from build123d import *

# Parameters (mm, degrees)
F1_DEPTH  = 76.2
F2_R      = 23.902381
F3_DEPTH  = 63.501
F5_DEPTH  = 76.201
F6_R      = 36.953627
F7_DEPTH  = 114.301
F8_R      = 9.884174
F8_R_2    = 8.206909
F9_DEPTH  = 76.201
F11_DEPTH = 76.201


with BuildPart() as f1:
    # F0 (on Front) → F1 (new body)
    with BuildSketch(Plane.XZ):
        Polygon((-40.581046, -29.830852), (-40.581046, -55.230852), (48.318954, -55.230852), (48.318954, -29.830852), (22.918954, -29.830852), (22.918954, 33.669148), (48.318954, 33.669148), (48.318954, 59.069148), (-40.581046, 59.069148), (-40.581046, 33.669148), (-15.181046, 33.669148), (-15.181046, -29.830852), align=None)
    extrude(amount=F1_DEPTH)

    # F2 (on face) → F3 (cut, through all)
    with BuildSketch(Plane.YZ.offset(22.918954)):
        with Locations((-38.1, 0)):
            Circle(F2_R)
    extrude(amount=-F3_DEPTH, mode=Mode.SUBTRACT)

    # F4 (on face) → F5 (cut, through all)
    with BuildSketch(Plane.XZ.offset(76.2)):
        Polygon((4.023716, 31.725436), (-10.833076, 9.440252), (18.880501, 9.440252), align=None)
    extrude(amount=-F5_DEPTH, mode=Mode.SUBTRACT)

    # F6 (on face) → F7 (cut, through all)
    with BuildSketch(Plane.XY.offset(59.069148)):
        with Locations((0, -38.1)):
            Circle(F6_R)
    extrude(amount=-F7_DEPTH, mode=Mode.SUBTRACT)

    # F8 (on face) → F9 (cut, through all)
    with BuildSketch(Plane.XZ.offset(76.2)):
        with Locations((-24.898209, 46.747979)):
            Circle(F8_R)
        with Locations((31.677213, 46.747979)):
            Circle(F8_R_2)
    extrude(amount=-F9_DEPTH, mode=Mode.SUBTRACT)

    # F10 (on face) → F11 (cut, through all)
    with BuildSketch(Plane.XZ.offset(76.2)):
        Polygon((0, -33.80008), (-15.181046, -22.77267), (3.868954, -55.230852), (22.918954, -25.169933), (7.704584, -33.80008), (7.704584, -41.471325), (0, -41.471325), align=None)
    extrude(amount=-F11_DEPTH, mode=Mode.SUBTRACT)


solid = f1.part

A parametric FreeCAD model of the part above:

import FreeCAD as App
import Part
import Sketcher
from FreeCAD import Vector
Q = App.Units.Quantity


def add_polygon(sketch, points):
    """Adds a closed chain of lines whose ends are joined by coincident constraints."""
    first, n = sketch.GeometryCount, len(points)
    for a, b in zip(points, points[1:] + points[:1]):
        sketch.addGeometry(Part.LineSegment(App.Vector(*a, 0), App.Vector(*b, 0)), False)
    for i in range(n):
        sketch.addConstraint(Sketcher.Constraint("Coincident", first + i, 2, first + (i + 1) % n, 1))

doc = App.newDocument("Part")
body = doc.addObject("PartDesign::Body", "Body")
body.AllowCompound = True

# Sketch on XZ plane
sketch1 = body.newObject("Sketcher::SketchObject", "Sketch")
sketch1.AttachmentSupport = (doc.getObject("XZ_Plane"), [""])
sketch1.MapMode = "FlatFace"
add_polygon(sketch1, [(-41, -30), (-41, -55), (48, -55), (48, -30), (23, -30), (23, 34), (48, 34), (48, 59), (-41, 59), (-41, 34), (-15, 34), (-15, -30)])  # lines 0-11
sketch1.addConstraint([
    Sketcher.Constraint("Vertical", 0),
    Sketcher.Constraint("Horizontal", 1),
    Sketcher.Constraint("Vertical", 2),
    Sketcher.Constraint("Horizontal", 3),
    Sketcher.Constraint("Vertical", 4),
    Sketcher.Constraint("Horizontal", 5),
    Sketcher.Constraint("Vertical", 6),
    Sketcher.Constraint("Horizontal", 7),
    Sketcher.Constraint("Vertical", 8),
    Sketcher.Constraint("Horizontal", 9),
    Sketcher.Constraint("Vertical", 10),
    Sketcher.Constraint("Horizontal", 11),
    Sketcher.Constraint("Horizontal", 5, 2, 8, 2),
    Sketcher.Constraint("Horizontal", 3, 2, 10, 2),
    Sketcher.Constraint("Vertical", 2, 2, 5, 2),
    Sketcher.Constraint("Vertical", 0, 2, 7, 2),
    Sketcher.Constraint("Equal", 5, 9),
    Sketcher.Constraint("Equal", 11, 0),
    Sketcher.Constraint("Equal", 2, 6),
    Sketcher.Constraint("DistanceX", 3, 2, 3, 1, Q("1 in")),
    Sketcher.Constraint("DistanceX", 1, 1, 1, 2, Q("3.5 in")),
    Sketcher.Constraint("DistanceY", 4, 1, 4, 2, Q("2.5 in")),
    Sketcher.Constraint("DistanceY", 2, 2, -1, 1, 29.830852),
    Sketcher.Constraint("DistanceX", 0, 2, -1, 1, 40.581046),
])
pad1 = body.newObject("PartDesign::Pad", "Pad")
pad1.Profile = sketch1
pad1.Length = Q("3 in")

# Sketch on YZ plane
sketch2 = body.newObject("Sketcher::SketchObject", "Sketch001")
sketch2.AttachmentSupport = (doc.getObject("YZ_Plane"), [""])
sketch2.MapMode = "FlatFace"
sketch2.AttachmentOffset = App.Placement(Vector(0, 0, 22.918954), App.Rotation())
sketch2.addGeometry(Part.Circle(Vector(-38, 0, 0), Vector(0, 0, 1), 24), False)
sketch2.addConstraint([
    Sketcher.Constraint("PointOnObject", 0, 3, -1),
    Sketcher.Constraint("DistanceX", 0, 3, -1, 1, Q("1.5 in")),
    Sketcher.Constraint("Diameter", 0, 47.804762),
])
pocket1 = body.newObject("PartDesign::Pocket", "Pocket")
pocket1.Profile = sketch2
pocket1.Type = "ThroughAll"

# Sketch on XZ plane
sketch3 = body.newObject("Sketcher::SketchObject", "Sketch002")
sketch3.AttachmentSupport = (doc.getObject("XZ_Plane"), [""])
sketch3.MapMode = "FlatFace"
sketch3.AttachmentOffset = App.Placement(Vector(0, 0, 3 * 25.4), App.Rotation())
add_polygon(sketch3, [(4, 32), (-11, 9), (19, 9)])  # lines 0-2
sketch3.addConstraint([
    Sketcher.Constraint("Horizontal", 1),
    Sketcher.Constraint("DistanceX", -1, 1, 1, 2, 18.880501),
    Sketcher.Constraint("Distance", 0, 26.783459),
    Sketcher.Constraint("DistanceX", 1, 1, 1, 2, 29.713577),
    Sketcher.Constraint("DistanceY", -1, 1, 0, 2, 9.440252),
    Sketcher.Constraint("Distance", 2, 26.783455),
])
pocket2 = body.newObject("PartDesign::Pocket", "Pocket001")
pocket2.Profile = sketch3
pocket2.Type = "ThroughAll"

# Sketch on XY plane
sketch4 = body.newObject("Sketcher::SketchObject", "Sketch003")
sketch4.AttachmentSupport = (doc.getObject("XY_Plane"), [""])
sketch4.MapMode = "FlatFace"
sketch4.AttachmentOffset = App.Placement(Vector(0, 0, 59.069148), App.Rotation())
sketch4.addGeometry(Part.Circle(Vector(0, -38, 0), Vector(0, 0, 1), 37), False)
sketch4.addConstraint([
    Sketcher.Constraint("PointOnObject", 0, 3, -2),
    Sketcher.Constraint("DistanceY", 0, 3, -1, 1, Q("1.5 in")),
    Sketcher.Constraint("Diameter", 0, 73.907254),
])
pocket3 = body.newObject("PartDesign::Pocket", "Pocket002")
pocket3.Profile = sketch4
pocket3.Type = "ThroughAll"

# Sketch on XZ plane
sketch5 = body.newObject("Sketcher::SketchObject", "Sketch004")
sketch5.AttachmentSupport = (doc.getObject("XZ_Plane"), [""])
sketch5.MapMode = "FlatFace"
sketch5.AttachmentOffset = App.Placement(Vector(0, 0, 3 * 25.4), App.Rotation())
sketch5.addGeometry([
    Part.Circle(Vector(-25, 47, 0), Vector(0, 0, 1), 10),
    Part.Circle(Vector(32, 47, 0), Vector(0, 0, 1), 8),
], False)
sketch5.addConstraint([
    Sketcher.Constraint("Horizontal", 0, 3, 1, 3),
    Sketcher.Constraint("Diameter", 0, 19.768348),
    Sketcher.Constraint("Diameter", 1, 16.413818),
    Sketcher.Constraint("DistanceX", 0, 3, -1, 1, 24.898209),
    Sketcher.Constraint("DistanceY", -1, 1, 0, 3, 46.747979),
    Sketcher.Constraint("DistanceX", -1, 1, 1, 3, 31.677213),
])
pocket4 = body.newObject("PartDesign::Pocket", "Pocket003")
pocket4.Profile = sketch5
pocket4.Type = "ThroughAll"

# Sketch on XZ plane
sketch6 = body.newObject("Sketcher::SketchObject", "Sketch005")
sketch6.AttachmentSupport = (doc.getObject("XZ_Plane"), [""])
sketch6.MapMode = "FlatFace"
sketch6.AttachmentOffset = App.Placement(Vector(0, 0, 3 * 25.4), App.Rotation())
add_polygon(sketch6, [(0, -34), (-15, -23), (4, -55), (23, -25), (8, -34), (8, -41), (0, -41)])  # lines 0-6
sketch6.addConstraint([
    Sketcher.Constraint("Vertical", 4),
    Sketcher.Constraint("Horizontal", 5),
    Sketcher.Constraint("Vertical", 6),
    Sketcher.Constraint("PointOnObject", 5, 2, -2),
    Sketcher.Constraint("Horizontal", 3, 2, 6, 2),
    Sketcher.Constraint("DistanceX", 0, 2, 2, 2, Q("1.5 in")),
    Sketcher.Constraint("DistanceX", 0, 2, 1, 2, Q("0.75 in")),
    Sketcher.Constraint("Distance", 1, 37.635569),
    Sketcher.Constraint("Distance", 2, 35.588781),
    Sketcher.Constraint("DistanceX", 5, 2, 5, 1, 7.704584),
    Sketcher.Constraint("DistanceY", 4, 2, 4, 1, 7.671245),
    Sketcher.Constraint("DistanceY", 0, 2, -1, 1, 22.77267),
    Sketcher.Constraint("DistanceY", 3, 2, -1, 1, 33.80008),
    Sketcher.Constraint("DistanceX", 3, 2, 2, 2, 15.21437),
])
pocket5 = body.newObject("PartDesign::Pocket", "Pocket004")
pocket5.Profile = sketch6
pocket5.Type = "ThroughAll"

doc.recompute()
